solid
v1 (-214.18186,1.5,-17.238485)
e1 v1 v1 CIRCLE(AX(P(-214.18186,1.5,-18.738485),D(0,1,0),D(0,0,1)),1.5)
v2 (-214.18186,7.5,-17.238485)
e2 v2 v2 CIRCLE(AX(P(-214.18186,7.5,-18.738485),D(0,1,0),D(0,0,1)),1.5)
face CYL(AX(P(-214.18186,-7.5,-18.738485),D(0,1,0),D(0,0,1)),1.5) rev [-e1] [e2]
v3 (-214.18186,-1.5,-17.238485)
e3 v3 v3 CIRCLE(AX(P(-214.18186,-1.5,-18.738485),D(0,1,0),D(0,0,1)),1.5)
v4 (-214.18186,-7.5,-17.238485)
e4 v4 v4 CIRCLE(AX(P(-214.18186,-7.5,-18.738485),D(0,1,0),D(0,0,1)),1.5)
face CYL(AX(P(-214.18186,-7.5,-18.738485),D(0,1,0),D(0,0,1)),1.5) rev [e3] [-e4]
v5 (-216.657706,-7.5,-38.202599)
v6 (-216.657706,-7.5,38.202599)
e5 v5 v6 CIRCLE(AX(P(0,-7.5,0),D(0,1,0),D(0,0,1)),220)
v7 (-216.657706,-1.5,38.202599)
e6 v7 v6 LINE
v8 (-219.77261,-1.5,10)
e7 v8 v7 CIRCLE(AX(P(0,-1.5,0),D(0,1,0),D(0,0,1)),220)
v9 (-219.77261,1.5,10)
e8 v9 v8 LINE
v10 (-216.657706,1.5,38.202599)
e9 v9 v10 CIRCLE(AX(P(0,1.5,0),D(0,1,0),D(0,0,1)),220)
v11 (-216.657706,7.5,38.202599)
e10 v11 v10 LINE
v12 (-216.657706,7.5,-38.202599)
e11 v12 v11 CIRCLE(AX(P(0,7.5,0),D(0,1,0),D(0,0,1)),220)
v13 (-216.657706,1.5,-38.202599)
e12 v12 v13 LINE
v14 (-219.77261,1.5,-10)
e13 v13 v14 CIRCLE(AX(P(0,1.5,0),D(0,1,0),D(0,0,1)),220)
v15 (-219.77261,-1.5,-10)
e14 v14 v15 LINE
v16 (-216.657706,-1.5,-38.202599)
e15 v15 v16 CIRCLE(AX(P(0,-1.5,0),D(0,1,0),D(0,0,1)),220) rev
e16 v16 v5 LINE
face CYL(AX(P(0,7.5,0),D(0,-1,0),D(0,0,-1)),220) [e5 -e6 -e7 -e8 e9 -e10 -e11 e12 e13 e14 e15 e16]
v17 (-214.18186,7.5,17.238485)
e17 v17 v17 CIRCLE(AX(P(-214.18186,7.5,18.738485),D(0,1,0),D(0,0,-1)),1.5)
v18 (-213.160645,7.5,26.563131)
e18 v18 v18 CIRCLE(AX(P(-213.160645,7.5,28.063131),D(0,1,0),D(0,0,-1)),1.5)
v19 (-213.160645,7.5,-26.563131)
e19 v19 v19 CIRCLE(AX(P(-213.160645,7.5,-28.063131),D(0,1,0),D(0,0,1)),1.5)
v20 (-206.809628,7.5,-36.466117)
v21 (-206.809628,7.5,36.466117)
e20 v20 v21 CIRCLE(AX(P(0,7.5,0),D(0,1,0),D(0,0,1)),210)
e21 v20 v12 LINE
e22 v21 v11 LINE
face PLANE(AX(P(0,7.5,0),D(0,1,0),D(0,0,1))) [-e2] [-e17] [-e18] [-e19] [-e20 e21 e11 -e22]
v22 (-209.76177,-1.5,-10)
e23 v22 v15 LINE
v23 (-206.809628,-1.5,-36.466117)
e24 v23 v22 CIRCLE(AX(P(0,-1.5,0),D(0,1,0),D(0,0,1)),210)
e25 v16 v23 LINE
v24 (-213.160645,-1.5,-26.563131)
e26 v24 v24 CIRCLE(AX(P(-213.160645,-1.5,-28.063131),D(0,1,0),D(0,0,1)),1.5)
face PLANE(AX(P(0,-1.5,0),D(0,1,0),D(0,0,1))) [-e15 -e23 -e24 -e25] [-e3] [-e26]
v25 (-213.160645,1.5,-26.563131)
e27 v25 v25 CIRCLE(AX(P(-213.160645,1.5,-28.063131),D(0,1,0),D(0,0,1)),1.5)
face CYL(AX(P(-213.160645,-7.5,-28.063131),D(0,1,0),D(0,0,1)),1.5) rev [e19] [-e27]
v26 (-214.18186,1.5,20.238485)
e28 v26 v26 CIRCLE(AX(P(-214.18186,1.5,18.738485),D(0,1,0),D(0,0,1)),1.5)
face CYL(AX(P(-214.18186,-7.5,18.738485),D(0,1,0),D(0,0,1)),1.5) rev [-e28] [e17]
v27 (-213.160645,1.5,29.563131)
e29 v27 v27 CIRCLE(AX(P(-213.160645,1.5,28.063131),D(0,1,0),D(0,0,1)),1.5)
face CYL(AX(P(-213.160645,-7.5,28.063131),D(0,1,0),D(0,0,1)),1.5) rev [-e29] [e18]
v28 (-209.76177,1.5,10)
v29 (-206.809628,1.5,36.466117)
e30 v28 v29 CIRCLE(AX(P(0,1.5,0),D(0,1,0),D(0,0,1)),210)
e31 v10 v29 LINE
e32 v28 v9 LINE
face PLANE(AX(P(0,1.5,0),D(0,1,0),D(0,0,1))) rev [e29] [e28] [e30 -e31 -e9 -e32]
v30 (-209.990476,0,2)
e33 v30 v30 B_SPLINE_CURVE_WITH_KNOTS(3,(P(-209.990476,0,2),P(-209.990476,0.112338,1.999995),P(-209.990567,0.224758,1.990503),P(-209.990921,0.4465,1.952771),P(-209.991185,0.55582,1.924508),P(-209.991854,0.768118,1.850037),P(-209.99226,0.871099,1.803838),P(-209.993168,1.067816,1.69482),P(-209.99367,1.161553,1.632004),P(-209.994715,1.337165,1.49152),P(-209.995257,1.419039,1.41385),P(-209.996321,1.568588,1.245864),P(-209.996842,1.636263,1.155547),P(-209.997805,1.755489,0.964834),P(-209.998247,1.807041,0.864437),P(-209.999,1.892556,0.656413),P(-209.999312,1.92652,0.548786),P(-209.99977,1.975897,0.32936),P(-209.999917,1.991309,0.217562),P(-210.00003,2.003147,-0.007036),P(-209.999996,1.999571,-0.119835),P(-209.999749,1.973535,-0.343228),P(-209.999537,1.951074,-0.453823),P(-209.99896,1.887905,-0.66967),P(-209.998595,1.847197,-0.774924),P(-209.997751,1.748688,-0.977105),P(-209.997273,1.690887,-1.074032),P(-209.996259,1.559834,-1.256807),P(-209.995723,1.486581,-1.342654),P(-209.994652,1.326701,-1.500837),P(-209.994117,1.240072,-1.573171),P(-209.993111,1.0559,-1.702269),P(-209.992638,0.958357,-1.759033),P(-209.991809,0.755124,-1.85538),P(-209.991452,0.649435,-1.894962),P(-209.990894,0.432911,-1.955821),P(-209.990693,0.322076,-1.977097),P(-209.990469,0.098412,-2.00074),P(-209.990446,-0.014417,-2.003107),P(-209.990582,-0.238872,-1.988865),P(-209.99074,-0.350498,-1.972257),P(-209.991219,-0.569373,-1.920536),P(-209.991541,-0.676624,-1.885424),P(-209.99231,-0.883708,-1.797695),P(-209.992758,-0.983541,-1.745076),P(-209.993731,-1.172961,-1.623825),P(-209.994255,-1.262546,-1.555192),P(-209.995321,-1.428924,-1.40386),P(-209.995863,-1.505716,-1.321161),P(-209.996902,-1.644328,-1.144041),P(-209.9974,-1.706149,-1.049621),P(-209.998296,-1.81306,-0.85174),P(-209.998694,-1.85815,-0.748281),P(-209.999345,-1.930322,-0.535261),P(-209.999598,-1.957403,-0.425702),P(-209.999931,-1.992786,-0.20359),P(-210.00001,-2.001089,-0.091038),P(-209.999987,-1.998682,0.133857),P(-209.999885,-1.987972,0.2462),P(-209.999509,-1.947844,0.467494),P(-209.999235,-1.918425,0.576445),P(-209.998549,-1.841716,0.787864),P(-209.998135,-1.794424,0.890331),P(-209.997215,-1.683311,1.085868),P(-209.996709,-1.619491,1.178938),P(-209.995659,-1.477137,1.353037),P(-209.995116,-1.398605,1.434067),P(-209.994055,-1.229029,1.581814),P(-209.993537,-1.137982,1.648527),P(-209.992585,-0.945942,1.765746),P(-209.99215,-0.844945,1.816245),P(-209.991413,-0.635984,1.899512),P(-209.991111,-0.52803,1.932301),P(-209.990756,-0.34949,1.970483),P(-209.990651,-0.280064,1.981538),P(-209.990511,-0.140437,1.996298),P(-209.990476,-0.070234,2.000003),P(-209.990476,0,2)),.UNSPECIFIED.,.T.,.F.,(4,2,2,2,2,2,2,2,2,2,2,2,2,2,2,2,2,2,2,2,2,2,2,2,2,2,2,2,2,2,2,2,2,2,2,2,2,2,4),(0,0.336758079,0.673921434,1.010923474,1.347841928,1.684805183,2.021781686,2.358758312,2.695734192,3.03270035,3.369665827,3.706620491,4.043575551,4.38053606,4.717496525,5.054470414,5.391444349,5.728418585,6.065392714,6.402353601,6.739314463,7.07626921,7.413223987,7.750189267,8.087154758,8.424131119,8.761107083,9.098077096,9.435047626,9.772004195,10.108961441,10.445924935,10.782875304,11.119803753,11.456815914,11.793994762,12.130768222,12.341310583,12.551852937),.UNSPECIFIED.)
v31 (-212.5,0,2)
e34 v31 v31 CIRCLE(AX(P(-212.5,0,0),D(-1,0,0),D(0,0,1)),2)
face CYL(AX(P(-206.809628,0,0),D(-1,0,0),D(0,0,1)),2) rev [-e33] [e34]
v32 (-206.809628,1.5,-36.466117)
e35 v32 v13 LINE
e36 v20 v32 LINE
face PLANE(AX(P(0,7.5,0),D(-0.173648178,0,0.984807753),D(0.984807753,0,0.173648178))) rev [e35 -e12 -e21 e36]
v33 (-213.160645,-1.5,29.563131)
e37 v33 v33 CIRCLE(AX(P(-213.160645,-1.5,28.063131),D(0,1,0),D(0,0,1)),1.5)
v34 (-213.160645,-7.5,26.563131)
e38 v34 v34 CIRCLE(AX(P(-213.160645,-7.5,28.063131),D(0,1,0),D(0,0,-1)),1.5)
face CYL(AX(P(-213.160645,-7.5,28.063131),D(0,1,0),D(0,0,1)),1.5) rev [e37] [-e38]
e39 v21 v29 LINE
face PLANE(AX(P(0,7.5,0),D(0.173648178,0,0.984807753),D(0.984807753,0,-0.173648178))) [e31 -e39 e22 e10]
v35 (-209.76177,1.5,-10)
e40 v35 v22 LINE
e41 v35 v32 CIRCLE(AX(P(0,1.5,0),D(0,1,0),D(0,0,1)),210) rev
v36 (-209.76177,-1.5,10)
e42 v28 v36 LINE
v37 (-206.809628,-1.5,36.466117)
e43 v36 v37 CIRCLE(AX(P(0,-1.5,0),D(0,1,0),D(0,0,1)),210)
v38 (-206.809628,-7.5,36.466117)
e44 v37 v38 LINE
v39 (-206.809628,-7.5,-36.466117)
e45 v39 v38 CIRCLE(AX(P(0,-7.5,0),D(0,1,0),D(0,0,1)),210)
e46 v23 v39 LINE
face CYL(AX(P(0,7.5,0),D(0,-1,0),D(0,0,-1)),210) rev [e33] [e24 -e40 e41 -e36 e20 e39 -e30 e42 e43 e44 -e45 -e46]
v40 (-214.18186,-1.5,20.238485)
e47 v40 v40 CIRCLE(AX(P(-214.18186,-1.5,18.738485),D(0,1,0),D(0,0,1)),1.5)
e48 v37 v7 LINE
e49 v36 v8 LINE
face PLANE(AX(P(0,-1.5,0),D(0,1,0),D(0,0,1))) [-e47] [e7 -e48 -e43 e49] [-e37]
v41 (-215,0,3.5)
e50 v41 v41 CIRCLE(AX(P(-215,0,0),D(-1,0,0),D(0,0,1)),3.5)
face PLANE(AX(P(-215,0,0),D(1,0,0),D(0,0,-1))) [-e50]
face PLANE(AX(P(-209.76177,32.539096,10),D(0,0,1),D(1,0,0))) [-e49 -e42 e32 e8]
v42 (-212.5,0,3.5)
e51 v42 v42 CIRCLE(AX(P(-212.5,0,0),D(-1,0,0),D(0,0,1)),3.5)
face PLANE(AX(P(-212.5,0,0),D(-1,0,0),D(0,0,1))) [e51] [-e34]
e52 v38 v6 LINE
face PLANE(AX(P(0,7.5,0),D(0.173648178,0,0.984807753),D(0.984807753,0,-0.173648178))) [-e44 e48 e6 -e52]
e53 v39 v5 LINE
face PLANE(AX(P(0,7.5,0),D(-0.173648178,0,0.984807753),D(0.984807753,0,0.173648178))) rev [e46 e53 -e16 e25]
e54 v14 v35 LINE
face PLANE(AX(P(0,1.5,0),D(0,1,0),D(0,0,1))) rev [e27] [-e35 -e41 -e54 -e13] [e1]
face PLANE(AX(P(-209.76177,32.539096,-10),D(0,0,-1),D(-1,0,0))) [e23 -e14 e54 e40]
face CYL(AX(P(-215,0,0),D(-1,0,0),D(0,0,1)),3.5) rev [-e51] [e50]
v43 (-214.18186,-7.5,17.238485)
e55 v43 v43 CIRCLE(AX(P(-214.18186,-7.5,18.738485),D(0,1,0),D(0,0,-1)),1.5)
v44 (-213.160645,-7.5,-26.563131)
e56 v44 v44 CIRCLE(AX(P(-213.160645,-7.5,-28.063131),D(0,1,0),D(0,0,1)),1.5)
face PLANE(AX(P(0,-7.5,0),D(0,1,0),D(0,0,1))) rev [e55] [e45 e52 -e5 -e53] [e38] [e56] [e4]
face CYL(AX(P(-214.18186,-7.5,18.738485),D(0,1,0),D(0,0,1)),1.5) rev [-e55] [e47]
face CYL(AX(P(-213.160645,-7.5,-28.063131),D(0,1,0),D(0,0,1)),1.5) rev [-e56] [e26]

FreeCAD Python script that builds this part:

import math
import FreeCAD as App
import Part
import Sketcher

V = App.Vector
Q = App.Units.Quantity


def add_polygon(sketch, points):
    """Adds a closed chain of lines whose ends are joined by coincident constraints."""
    first, n = sketch.GeometryCount, len(points)
    for a, b in zip(points, points[1:] + points[:1]):
        sketch.addGeometry(Part.LineSegment(App.Vector(*a, 0), App.Vector(*b, 0)), False)
    for i in range(n):
        sketch.addConstraint(Sketcher.Constraint("Coincident", first + i, 2, first + (i + 1) % n, 1))

doc = App.newDocument("Part")
body = doc.addObject("PartDesign::Body", "Body")

# Sketch on XZ plane
sketch1 = body.newObject("Sketcher::SketchObject", "Sketch")
sketch1.AttachmentSupport = (doc.getObject("XZ_Plane"), [""])
sketch1.MapMode = "FlatFace"
sketch1.addGeometry([
    Part.ArcOfCircle(Part.Circle(V(0, 0, 0), V(0, 0, 1), 210), math.radians(-177.27), math.radians(-170)),  # 0
    Part.LineSegment(V(-207, -36, 0), V(-217, -38, 0)),  # 1
    Part.ArcOfCircle(Part.Circle(V(0, 0, 0), V(0, 0, 1), 220), math.radians(-177.39), math.radians(-170)),  # 2
    Part.ArcOfCircle(Part.Circle(V(0, 0, 0), V(0, 0, 1), 220), math.radians(177.39), math.radians(182.61)),  # 3
    Part.ArcOfCircle(Part.Circle(V(0, 0, 0), V(0, 0, 1), 220), math.radians(170), math.radians(177.39)),  # 4
    Part.LineSegment(V(-217, 38, 0), V(-207, 36, 0)),  # 5
    Part.ArcOfCircle(Part.Circle(V(0, 0, 0), V(0, 0, 1), 210), math.radians(170), math.radians(177.27)),  # 6
    Part.ArcOfCircle(Part.Circle(V(0, 0, 0), V(0, 0, 1), 210), math.radians(177.27), math.radians(182.73)),  # 7
], False)
sketch1.addConstraint([
    Sketcher.Constraint("Coincident", 0, 2, 1, 1),
    Sketcher.Constraint("Coincident", 1, 2, 2, 2),
    Sketcher.Constraint("Tangent", 2, 1, 3, 2),
    Sketcher.Constraint("Tangent", 3, 1, 4, 2),
    Sketcher.Constraint("Coincident", 4, 1, 5, 1),
    Sketcher.Constraint("Coincident", 5, 2, 6, 1),
    Sketcher.Constraint("Tangent", 6, 2, 7, 1),
    Sketcher.Constraint("Tangent", 7, 2, 0, 1),
    Sketcher.Constraint("Coincident", 0, 3, -1, 1),
    Sketcher.Constraint("Coincident", 2, 3, -1, 1),
    Sketcher.Constraint("Coincident", 4, 3, -1, 1),
    Sketcher.Constraint("Coincident", 6, 3, -1, 1),
    Sketcher.Constraint("Horizontal", 3, 1, 6, 2),
    Sketcher.Constraint("Horizontal", 2, 1, 7, 2),
    Sketcher.Constraint("Vertical", 2, 1, 3, 1),
    Sketcher.Constraint("Vertical", 1, 2, 4, 1),
    Sketcher.Constraint("Vertical", 0, 2, 5, 2),
    Sketcher.Constraint("Radius", 0, Q("210 mm")),
    Sketcher.Constraint("Radius", 2, Q("220 mm")),
    Sketcher.Constraint("Angle", 1, Q("-170 deg")),
    Sketcher.Constraint("DistanceY", 2, 1, -1, 1, Q("10 mm")),
    Sketcher.Constraint("DistanceY", 1, 2, -1, 1, Q("38.202599 mm")),
])
pad1 = body.newObject("PartDesign::Pad", "Pad")
pad1.Profile = sketch1
pad1.Length = 15
pad1.Midplane = True

# Sketch on XZ plane
sketch2 = body.newObject("Sketcher::SketchObject", "Sketch001")
sketch2.AttachmentSupport = (doc.getObject("XZ_Plane"), [""])
sketch2.MapMode = "FlatFace"
sketch2.AttachmentOffset = App.Placement(V(0, 0, 1.5), App.Rotation())
sketch2.addGeometry([
    Part.LineSegment(V(-210, 10, 0), V(-220, 10, 0)),  # 0
    Part.ArcOfCircle(Part.Circle(V(0, 0, 0), V(0, 0, 1), 220), math.radians(170), math.radians(177.39)),  # 1
    Part.LineSegment(V(-217, 38, 0), V(-207, 36, 0)),  # 2
    Part.ArcOfCircle(Part.Circle(V(0, 0, 0), V(0, 0, 1), 210), math.radians(170), math.radians(177.27)),  # 3
    Part.LineSegment(V(-220, -10, 0), V(-210, -10, 0)),  # 4
    Part.ArcOfCircle(Part.Circle(V(0, 0, 0), V(0, 0, 1), 210), math.radians(-177.27), math.radians(-170)),  # 5
    Part.LineSegment(V(-207, -36, 0), V(-217, -38, 0)),  # 6
    Part.ArcOfCircle(Part.Circle(V(0, 0, 0), V(0, 0, 1), 220), math.radians(-177.39), math.radians(-170)),  # 7
], False)
sketch2.addConstraint([
    Sketcher.Constraint("Coincident", 0, 2, 1, 2),
    Sketcher.Constraint("Coincident", 1, 1, 2, 1),
    Sketcher.Constraint("Coincident", 2, 2, 3, 1),
    Sketcher.Constraint("Coincident", 3, 2, 0, 1),
    Sketcher.Constraint("Coincident", 4, 2, 5, 1),
    Sketcher.Constraint("Coincident", 5, 2, 6, 1),
    Sketcher.Constraint("Coincident", 6, 2, 7, 2),
    Sketcher.Constraint("Coincident", 7, 1, 4, 1),
    Sketcher.Constraint("Horizontal", 0),
    Sketcher.Constraint("Horizontal", 4),
    Sketcher.Constraint("Coincident", 1, 3, -1, 1),
    Sketcher.Constraint("Coincident", 3, 3, -1, 1),
    Sketcher.Constraint("Coincident", 5, 3, -1, 1),
    Sketcher.Constraint("Coincident", 7, 3, -1, 1),
    Sketcher.Constraint("Equal", 3, 5),
    Sketcher.Constraint("Equal", 1, 7),
    Sketcher.Constraint("Vertical", 3, 2, 4, 2),
    Sketcher.Constraint("Vertical", 2, 2, 5, 2),
    Sketcher.Constraint("Vertical", 1, 1, 6, 2),
    Sketcher.Constraint("Radius", 1, Q("220 mm")),
    Sketcher.Constraint("Radius", 3, Q("210 mm")),
    Sketcher.Constraint("Angle", 2, Q("-10 deg")),
    Sketcher.Constraint("DistanceY", -1, 1, 0, 2, Q("10 mm")),
    Sketcher.Constraint("DistanceY", -1, 1, 1, 1, Q("38.202599 mm")),
])
pocket1 = body.newObject("PartDesign::Pocket", "Pocket")
pocket1.Profile = sketch2
pocket1.Length = 3

# Sketch on XZ plane
sketch3 = body.newObject("Sketcher::SketchObject", "Sketch002")
sketch3.AttachmentSupport = (doc.getObject("XZ_Plane"), [""])
sketch3.MapMode = "FlatFace"
sketch3.addGeometry([
    Part.Circle(V(-213.2, -28.1, 0), V(0, 0, 1), 1.5),
    Part.Circle(V(-214.2, -18.7, 0), V(0, 0, 1), 1.5),
    Part.Circle(V(-214.2, 18.7, 0), V(0, 0, 1), 1.5),
    Part.Circle(V(-213.2, 28.1, 0), V(0, 0, 1), 1.5),
], False)
sketch3.addConstraint([
    Sketcher.Constraint("Equal", 0, 1),
    Sketcher.Constraint("Equal", 1, 2),
    Sketcher.Constraint("Equal", 2, 3),
    Sketcher.Constraint("Symmetric", 1, 3, 2, 3, -1),
    Sketcher.Constraint("Symmetric", 0, 3, 3, 3, -1),
    Sketcher.Constraint("Diameter", 0, Q("3 mm")),
    Sketcher.Constraint("DistanceY", 0, 3, -1, 1, Q("28.063131 mm")),
    Sketcher.Constraint("DistanceX", 1, 3, -1, 1, Q("214.18186 mm")),
    Sketcher.Constraint("DistanceY", 1, 3, 2, 3, Q("37.476969 mm")),
    Sketcher.Constraint("DistanceX", 0, 3, -1, 1, Q("213.160645 mm")),
])
pocket2 = body.newObject("PartDesign::Pocket", "Pocket001")
pocket2.Profile = sketch3
pocket2.Type = "ThroughAll"
pocket2.Midplane = True

# Sketch on YZ plane
sketch4 = body.newObject("Sketcher::SketchObject", "Sketch003")
sketch4.AttachmentSupport = (doc.getObject("YZ_Plane"), [""])
sketch4.MapMode = "FlatFace"
sketch4.AttachmentOffset = App.Placement(V(0, 0, -215), App.Rotation())
sketch4.addGeometry(Part.Circle(V(0, 0, 0), V(0, 0, 1), 2), False)
sketch4.addConstraint([
    Sketcher.Constraint("Coincident", 0, 3, -1, 1),
    Sketcher.Constraint("Diameter", 0, Q("4 mm")),
])
pocket3 = body.newObject("PartDesign::Pocket", "Pocket002")
pocket3.Profile = sketch4
pocket3.Type = "ThroughAll"
pocket3.Reversed = True

# Sketch on XZ plane
sketch5 = body.newObject("Sketcher::SketchObject", "Sketch004")
sketch5.AttachmentSupport = (doc.getObject("XZ_Plane"), [""])
sketch5.MapMode = "FlatFace"
add_polygon(sketch5, [(-215, -3.5), (-215, 0), (-212.5, 0), (-212.5, -3.5)])  # lines 0-3
sketch5.addConstraint([
    Sketcher.Constraint("Vertical", 0),
    Sketcher.Constraint("Horizontal", 1),
    Sketcher.Constraint("Vertical", 2),
    Sketcher.Constraint("Horizontal", 3),
    Sketcher.Constraint("PointOnObject", 0, 2, -1),
    Sketcher.Constraint("DistanceX", 1, 1, 1, 2, Q("2.5 mm")),
    Sketcher.Constraint("DistanceY", 0, 1, 0, 2, Q("3.5 mm")),
    Sketcher.Constraint("DistanceX", 0, 2, -1, 1, Q("215 mm")),
])
groove = body.newObject("PartDesign::Groove", "Groove")
groove.Profile = sketch5
groove.ReferenceAxis = (sketch5, ["H_Axis"])
groove.Angle = 360

doc.recompute()
